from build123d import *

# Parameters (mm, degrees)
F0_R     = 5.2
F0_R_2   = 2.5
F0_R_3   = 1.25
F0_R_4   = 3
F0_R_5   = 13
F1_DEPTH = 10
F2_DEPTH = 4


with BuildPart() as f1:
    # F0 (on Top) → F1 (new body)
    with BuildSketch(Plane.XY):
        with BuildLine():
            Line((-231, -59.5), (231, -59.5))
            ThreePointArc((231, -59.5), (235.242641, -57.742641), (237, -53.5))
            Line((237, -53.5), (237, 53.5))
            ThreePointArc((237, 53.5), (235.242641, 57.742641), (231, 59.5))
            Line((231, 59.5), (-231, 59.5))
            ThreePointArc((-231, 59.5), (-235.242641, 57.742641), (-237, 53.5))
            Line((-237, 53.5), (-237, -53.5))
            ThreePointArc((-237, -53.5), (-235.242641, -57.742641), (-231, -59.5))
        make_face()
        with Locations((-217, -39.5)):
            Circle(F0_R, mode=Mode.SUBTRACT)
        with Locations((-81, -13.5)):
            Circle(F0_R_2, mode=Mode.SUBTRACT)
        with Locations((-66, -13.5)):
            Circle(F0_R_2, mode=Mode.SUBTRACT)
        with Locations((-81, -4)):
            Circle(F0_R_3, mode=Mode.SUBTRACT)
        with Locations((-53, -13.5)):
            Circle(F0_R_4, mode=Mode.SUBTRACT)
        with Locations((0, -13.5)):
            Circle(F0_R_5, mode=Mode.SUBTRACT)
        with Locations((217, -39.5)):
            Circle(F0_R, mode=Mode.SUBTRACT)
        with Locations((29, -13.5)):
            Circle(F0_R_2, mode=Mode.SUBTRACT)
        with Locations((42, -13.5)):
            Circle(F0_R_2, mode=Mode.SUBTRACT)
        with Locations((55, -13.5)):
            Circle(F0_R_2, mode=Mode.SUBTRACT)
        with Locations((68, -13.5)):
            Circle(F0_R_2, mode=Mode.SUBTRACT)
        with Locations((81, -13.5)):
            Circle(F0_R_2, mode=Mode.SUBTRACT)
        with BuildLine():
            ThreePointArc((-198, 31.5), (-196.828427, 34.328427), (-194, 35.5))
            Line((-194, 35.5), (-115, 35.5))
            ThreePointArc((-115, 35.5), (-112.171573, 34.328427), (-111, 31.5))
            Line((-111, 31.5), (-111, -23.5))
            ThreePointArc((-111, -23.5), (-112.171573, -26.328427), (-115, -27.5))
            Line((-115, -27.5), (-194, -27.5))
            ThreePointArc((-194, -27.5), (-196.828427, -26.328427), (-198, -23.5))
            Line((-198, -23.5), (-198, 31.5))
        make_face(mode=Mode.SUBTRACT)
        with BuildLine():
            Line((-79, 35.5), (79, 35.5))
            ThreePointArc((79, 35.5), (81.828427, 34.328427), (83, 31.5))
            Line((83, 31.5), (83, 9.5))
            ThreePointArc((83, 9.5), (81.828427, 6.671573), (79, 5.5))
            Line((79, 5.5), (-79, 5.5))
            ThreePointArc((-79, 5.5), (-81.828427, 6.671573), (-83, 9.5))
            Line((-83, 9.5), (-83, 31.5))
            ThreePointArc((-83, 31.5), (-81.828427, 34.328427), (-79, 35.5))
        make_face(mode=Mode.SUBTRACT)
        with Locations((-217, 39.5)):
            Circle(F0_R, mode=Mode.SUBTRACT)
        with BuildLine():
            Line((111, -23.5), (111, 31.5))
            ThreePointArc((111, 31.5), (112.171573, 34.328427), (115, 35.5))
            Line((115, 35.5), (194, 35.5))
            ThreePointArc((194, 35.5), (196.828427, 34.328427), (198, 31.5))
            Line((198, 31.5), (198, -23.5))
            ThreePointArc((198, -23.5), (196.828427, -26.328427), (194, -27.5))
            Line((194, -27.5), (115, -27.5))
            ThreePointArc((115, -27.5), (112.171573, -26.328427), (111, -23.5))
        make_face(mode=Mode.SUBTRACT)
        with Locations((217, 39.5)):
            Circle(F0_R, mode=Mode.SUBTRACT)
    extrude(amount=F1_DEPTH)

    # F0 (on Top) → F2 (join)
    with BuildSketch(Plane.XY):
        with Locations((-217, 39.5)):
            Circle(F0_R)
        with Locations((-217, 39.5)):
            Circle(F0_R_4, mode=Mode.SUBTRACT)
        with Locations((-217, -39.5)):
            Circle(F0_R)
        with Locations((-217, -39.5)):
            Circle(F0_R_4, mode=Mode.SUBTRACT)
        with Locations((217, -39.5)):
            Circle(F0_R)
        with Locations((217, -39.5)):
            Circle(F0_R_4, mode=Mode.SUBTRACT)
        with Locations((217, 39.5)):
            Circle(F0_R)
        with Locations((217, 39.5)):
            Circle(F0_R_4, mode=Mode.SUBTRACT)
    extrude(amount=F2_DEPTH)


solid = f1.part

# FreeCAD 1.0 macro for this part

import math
import FreeCAD as App
import Part
import Sketcher

V = App.Vector

doc = App.newDocument("Part")
body = doc.addObject("PartDesign::Body", "Body")

# Sketch on XY plane
sketch1 = body.newObject("Sketcher::SketchObject", "Sketch")
sketch1.AttachmentSupport = (doc.getObject("XY_Plane"), [""])
sketch1.MapMode = "FlatFace"
sketch1.addGeometry([
    Part.LineSegment(V(-231, -59.5, 0), V(231, -59.5, 0)),  # 0
    Part.ArcOfCircle(Part.Circle(V(231, -53.5, 0), V(0, 0, 1), 6), math.radians(-90), math.radians(0)),  # 1
    Part.LineSegment(V(237, -53.5, 0), V(237, 53.5, 0)),  # 2
    Part.ArcOfCircle(Part.Circle(V(231, 53.5, 0), V(0, 0, 1), 6), math.radians(0), math.radians(90)),  # 3
    Part.LineSegment(V(231, 59.5, 0), V(-231, 59.5, 0)),  # 4
    Part.ArcOfCircle(Part.Circle(V(-231, 53.5, 0), V(0, 0, 1), 6), math.radians(90), math.radians(180)),  # 5
    Part.LineSegment(V(-237, 53.5, 0), V(-237, -53.5, 0)),  # 6
    Part.ArcOfCircle(Part.Circle(V(-231, -53.5, 0), V(0, 0, 1), 6), math.radians(180), math.radians(270)),  # 7
    Part.Circle(V(-217, -39.5, 0), V(0, 0, 1), 5.2),  # 8
    Part.Circle(V(-81, -13.5, 0), V(0, 0, 1), 2.5),  # 9
    Part.Circle(V(-66, -13.5, 0), V(0, 0, 1), 2.5),  # 10
    Part.Circle(V(-53, -13.5, 0), V(0, 0, 1), 3),  # 11
    Part.Circle(V(-81, -4, 0), V(0, 0, 1), 1.2),  # 12
    Part.Circle(V(217, -39.5, 0), V(0, 0, 1), 5.2),  # 13
    Part.Circle(V(0, -13.5, 0), V(0, 0, 1), 13),  # 14
    Part.Circle(V(29, -13.5, 0), V(0, 0, 1), 2.5),  # 15
    Part.Circle(V(42, -13.5, 0), V(0, 0, 1), 2.5),  # 16
    Part.Circle(V(55, -13.5, 0), V(0, 0, 1), 2.5),  # 17
    Part.Circle(V(68, -13.5, 0), V(0, 0, 1), 2.5),  # 18
    Part.Circle(V(81, -13.5, 0), V(0, 0, 1), 2.5),  # 19
    Part.LineSegment(V(-198, -23.5, 0), V(-198, 31.5, 0)),  # 20
    Part.ArcOfCircle(Part.Circle(V(-194, 31.5, 0), V(0, 0, 1), 4), math.radians(90), math.radians(180)),  # 21
    Part.LineSegment(V(-194, 35.5, 0), V(-115, 35.5, 0)),  # 22
    Part.ArcOfCircle(Part.Circle(V(-115, 31.5, 0), V(0, 0, 1), 4), math.radians(0), math.radians(90)),  # 23
    Part.LineSegment(V(-111, 31.5, 0), V(-111, -23.5, 0)),  # 24
    Part.ArcOfCircle(Part.Circle(V(-115, -23.5, 0), V(0, 0, 1), 4), math.radians(-90), math.radians(0)),  # 25
    Part.LineSegment(V(-115, -27.5, 0), V(-194, -27.5, 0)),  # 26
    Part.ArcOfCircle(Part.Circle(V(-194, -23.5, 0), V(0, 0, 1), 4), math.radians(-180), math.radians(-90)),  # 27
    Part.Circle(V(-217, 39.5, 0), V(0, 0, 1), 5.2),  # 28
    Part.ArcOfCircle(Part.Circle(V(-79, 31.5, 0), V(0, 0, 1), 4), math.radians(90), math.radians(180)),  # 29
    Part.LineSegment(V(-79, 35.5, 0), V(79, 35.5, 0)),  # 30
    Part.ArcOfCircle(Part.Circle(V(79, 31.5, 0), V(0, 0, 1), 4), math.radians(0), math.radians(90)),  # 31
    Part.LineSegment(V(83, 31.5, 0), V(83, 9.5, 0)),  # 32
    Part.ArcOfCircle(Part.Circle(V(79, 9.5, 0), V(0, 0, 1), 4), math.radians(-90), math.radians(0)),  # 33
    Part.LineSegment(V(79, 5.5, 0), V(-79, 5.5, 0)),  # 34
    Part.ArcOfCircle(Part.Circle(V(-79, 9.5, 0), V(0, 0, 1), 4), math.radians(-180), math.radians(-90)),  # 35
    Part.LineSegment(V(-83, 9.5, 0), V(-83, 31.5, 0)),  # 36
    Part.ArcOfCircle(Part.Circle(V(115, -23.5, 0), V(0, 0, 1), 4), math.radians(-180), math.radians(-90)),  # 37
    Part.LineSegment(V(111, -23.5, 0), V(111, 31.5, 0)),  # 38
    Part.ArcOfCircle(Part.Circle(V(115, 31.5, 0), V(0, 0, 1), 4), math.radians(90), math.radians(180)),  # 39
    Part.LineSegment(V(115, 35.5, 0), V(194, 35.5, 0)),  # 40
    Part.ArcOfCircle(Part.Circle(V(194, 31.5, 0), V(0, 0, 1), 4), math.radians(0), math.radians(90)),  # 41
    Part.LineSegment(V(198, 31.5, 0), V(198, -23.5, 0)),  # 42
    Part.ArcOfCircle(Part.Circle(V(194, -23.5, 0), V(0, 0, 1), 4), math.radians(-90), math.radians(0)),  # 43
    Part.LineSegment(V(194, -27.5, 0), V(115, -27.5, 0)),  # 44
    Part.Circle(V(217, 39.5, 0), V(0, 0, 1), 5.2),  # 45
], False)
sketch1.addConstraint([
    Sketcher.Constraint("Tangent", 0, 2, 1, 1),
    Sketcher.Constraint("Tangent", 1, 2, 2, 1),
    Sketcher.Constraint("Tangent", 2, 2, 3, 1),
    Sketcher.Constraint("Tangent", 3, 2, 4, 1),
    Sketcher.Constraint("Tangent", 4, 2, 5, 1),
    Sketcher.Constraint("Tangent", 5, 2, 6, 1),
    Sketcher.Constraint("Tangent", 6, 2, 7, 1),
    Sketcher.Constraint("Tangent", 7, 2, 0, 1),
    Sketcher.Constraint("Tangent", 20, 2, 21, 2),
    Sketcher.Constraint("Tangent", 21, 1, 22, 1),
    Sketcher.Constraint("Tangent", 22, 2, 23, 2),
    Sketcher.Constraint("Tangent", 23, 1, 24, 1),
    Sketcher.Constraint("Tangent", 24, 2, 25, 2),
    Sketcher.Constraint("Tangent", 25, 1, 26, 1),
    Sketcher.Constraint("Tangent", 26, 2, 27, 2),
    Sketcher.Constraint("Tangent", 27, 1, 20, 1),
    Sketcher.Constraint("Tangent", 29, 1, 30, 1),
    Sketcher.Constraint("Tangent", 30, 2, 31, 2),
    Sketcher.Constraint("Tangent", 31, 1, 32, 1),
    Sketcher.Constraint("Tangent", 32, 2, 33, 2),
    Sketcher.Constraint("Tangent", 33, 1, 34, 1),
    Sketcher.Constraint("Tangent", 34, 2, 35, 2),
    Sketcher.Constraint("Tangent", 35, 1, 36, 1),
    Sketcher.Constraint("Tangent", 36, 2, 29, 2),
    Sketcher.Constraint("Tangent", 37, 1, 38, 1),
    Sketcher.Constraint("Tangent", 38, 2, 39, 2),
    Sketcher.Constraint("Tangent", 39, 1, 40, 1),
    Sketcher.Constraint("Tangent", 40, 2, 41, 2),
    Sketcher.Constraint("Tangent", 41, 1, 42, 1),
    Sketcher.Constraint("Tangent", 42, 2, 43, 2),
    Sketcher.Constraint("Tangent", 43, 1, 44, 1),
    Sketcher.Constraint("Tangent", 44, 2, 37, 2),
    Sketcher.Constraint("Horizontal", 0),
    Sketcher.Constraint("Vertical", 2),
    Sketcher.Constraint("Horizontal", 4),
    Sketcher.Constraint("Vertical", 6),
    Sketcher.Constraint("Vertical", 20),
    Sketcher.Constraint("Horizontal", 22),
    Sketcher.Constraint("Vertical", 24),
    Sketcher.Constraint("Horizontal", 26),
    Sketcher.Constraint("Horizontal", 30),
    Sketcher.Constraint("Vertical", 32),
    Sketcher.Constraint("Horizontal", 34),
    Sketcher.Constraint("Vertical", 36),
    Sketcher.Constraint("Vertical", 38),
    Sketcher.Constraint("Horizontal", 40),
    Sketcher.Constraint("Vertical", 42),
    Sketcher.Constraint("Horizontal", 44),
    Sketcher.Constraint("Equal", 1, 3),
    Sketcher.Constraint("Equal", 3, 5),
    Sketcher.Constraint("Equal", 5, 7),
    Sketcher.Constraint("Equal", 9, 10),
    Sketcher.Constraint("Equal", 8, 13),
    Sketcher.Constraint("Equal", 10, 15),
    Sketcher.Constraint("Equal", 15, 16),
    Sketcher.Constraint("Equal", 16, 17),
    Sketcher.Constraint("Equal", 17, 18),
    Sketcher.Constraint("Equal", 18, 19),
    Sketcher.Constraint("Equal", 21, 23),
    Sketcher.Constraint("Equal", 23, 25),
    Sketcher.Constraint("Equal", 25, 27),
    Sketcher.Constraint("Equal", 13, 28),
    Sketcher.Constraint("Equal", 27, 29),
    Sketcher.Constraint("Equal", 29, 31),
    Sketcher.Constraint("Equal", 31, 33),
    Sketcher.Constraint("Equal", 33, 35),
    Sketcher.Constraint("Equal", 35, 37),
    Sketcher.Constraint("Equal", 37, 39),
    Sketcher.Constraint("Equal", 39, 41),
    Sketcher.Constraint("Equal", 41, 43),
    Sketcher.Constraint("Equal", 28, 45),
    Sketcher.Constraint("Symmetric", 1, 3, 5, 3, -1, 1),
    Sketcher.Constraint("Symmetric", 13, 3, 28, 3, -1, 1),
    Sketcher.Constraint("Symmetric", 8, 3, 45, 3, -1, 1),
    Sketcher.Constraint("Symmetric", 8, 3, 13, 3, -2),
    Sketcher.Constraint("Symmetric", 9, 3, 19, 3, -2),
    Sketcher.Constraint("Symmetric", 25, 3, 37, 3, -2),
    Sketcher.Constraint("Symmetric", 21, 3, 41, 3, -2),
    Sketcher.Constraint("PointOnObject", 14, 3, -2),
    Sketcher.Constraint("Horizontal", 9, 3, 10, 3),
    Sketcher.Constraint("Horizontal", 10, 3, 11, 3),
    Sketcher.Constraint("Horizontal", 11, 3, 14, 3),
    Sketcher.Constraint("Horizontal", 14, 3, 15, 3),
    Sketcher.Constraint("Horizontal", 15, 3, 16, 3),
    Sketcher.Constraint("Horizontal", 16, 3, 17, 3),
    Sketcher.Constraint("Horizontal", 17, 3, 18, 3),
    Sketcher.Constraint("Horizontal", 23, 3, 29, 3),
    Sketcher.Constraint("Vertical", 9, 3, 12, 3),
    Sketcher.Constraint("Diameter", 9, 5.0),
    Sketcher.Constraint("Diameter", 11, 6.0),
    Sketcher.Constraint("Diameter", 14, 26.0),
    Sketcher.Constraint("Radius", 1, 5.999999),
    Sketcher.Constraint("Radius", 21, 4.0),
    Sketcher.Constraint("Diameter", 8, 10.4),
    Sketcher.Constraint("Diameter", 12, 2.5),
    Sketcher.Constraint("DistanceX", 0, 1, 0, 2, 462.0),
    Sketcher.Constraint("DistanceX", 22, 1, 22, 2, 79.0),
    Sketcher.Constraint("DistanceX", 30, 1, 30, 2, 158.0),
    Sketcher.Constraint("DistanceY", 2, 1, 2, 2, 107.0),
    Sketcher.Constraint("DistanceY", 20, 1, 20, 2, 55.0),
    Sketcher.Constraint("DistanceY", 32, 2, 32, 1, 22.0),
    Sketcher.Constraint("DistanceX", 8, 3, -1, 1, 217.0),
    Sketcher.Constraint("DistanceX", 9, 3, -1, 1, 81.0),
    Sketcher.Constraint("DistanceX", 10, 3, -1, 1, 66.0),
    Sketcher.Constraint("DistanceX", 11, 3, -1, 1, 53.0),
    Sketcher.Constraint("DistanceY", 12, 3, -1, 1, 4.0),
    Sketcher.Constraint("DistanceX", -1, 1, 15, 3, 29.0),
    Sketcher.Constraint("DistanceX", -1, 1, 16, 3, 42.0),
    Sketcher.Constraint("DistanceX", -1, 1, 17, 3, 55.0),
    Sketcher.Constraint("DistanceX", -1, 1, 18, 3, 68.0),
    Sketcher.Constraint("DistanceX", 21, 3, -1, 1, 194.0),
    Sketcher.Constraint("DistanceX", 29, 3, -1, 1, 79.0),
    Sketcher.Constraint("DistanceY", 8, 3, -1, 1, 39.5),
    Sketcher.Constraint("DistanceY", 9, 3, -1, 1, 13.5),
    Sketcher.Constraint("DistanceY", -1, 1, 21, 3, 31.5),
])
pad1 = body.newObject("PartDesign::Pad", "Pad")
pad1.Profile = sketch1
pad1.Length = 10

# Sketch on XY plane
sketch2 = body.newObject("Sketcher::SketchObject", "Sketch001")
sketch2.AttachmentSupport = (doc.getObject("XY_Plane"), [""])
sketch2.MapMode = "FlatFace"
sketch2.addGeometry([
    Part.Circle(V(-217, 39.5, 0), V(0, 0, 1), 5.2),  # 0
    Part.Circle(V(-217, 39.5, 0), V(0, 0, 1), 3),  # 1
    Part.Circle(V(-217, -39.5, 0), V(0, 0, 1), 5.2),  # 2
    Part.Circle(V(-217, -39.5, 0), V(0, 0, 1), 3),  # 3
    Part.Circle(V(217, -39.5, 0), V(0, 0, 1), 5.2),  # 4
    Part.Circle(V(217, -39.5, 0), V(0, 0, 1), 3),  # 5
    Part.Circle(V(217, 39.5, 0), V(0, 0, 1), 5.2),  # 6
    Part.Circle(V(217, 39.5, 0), V(0, 0, 1), 3),  # 7
], False)
sketch2.addConstraint([
    Sketcher.Constraint("Coincident", 1, 3, 0, 3),
    Sketcher.Constraint("Coincident", 3, 3, 2, 3),
    Sketcher.Constraint("Coincident", 5, 3, 4, 3),
    Sketcher.Constraint("Coincident", 7, 3, 6, 3),
    Sketcher.Constraint("Equal", 0, 2),
    Sketcher.Constraint("Equal", 1, 3),
    Sketcher.Constraint("Equal", 2, 4),
    Sketcher.Constraint("Equal", 3, 5),
    Sketcher.Constraint("Equal", 4, 6),
    Sketcher.Constraint("Equal", 5, 7),
    Sketcher.Constraint("Symmetric", 0, 3, 4, 3, -1, 1),
    Sketcher.Constraint("Symmetric", 2, 3, 6, 3, -1, 1),
    Sketcher.Constraint("Symmetric", 2, 3, 4, 3, -2),
    Sketcher.Constraint("Diameter", 1, 6.0),
    Sketcher.Constraint("Diameter", 0, 10.4),
    Sketcher.Constraint("DistanceX", 0, 3, -1, 1, 217.0),
    Sketcher.Constraint("DistanceY", 2, 3, 0, 3, 79.0),
])
pad2 = body.newObject("PartDesign::Pad", "Pad001")
pad2.Profile = sketch2
pad2.Length = 4

doc.recompute()
